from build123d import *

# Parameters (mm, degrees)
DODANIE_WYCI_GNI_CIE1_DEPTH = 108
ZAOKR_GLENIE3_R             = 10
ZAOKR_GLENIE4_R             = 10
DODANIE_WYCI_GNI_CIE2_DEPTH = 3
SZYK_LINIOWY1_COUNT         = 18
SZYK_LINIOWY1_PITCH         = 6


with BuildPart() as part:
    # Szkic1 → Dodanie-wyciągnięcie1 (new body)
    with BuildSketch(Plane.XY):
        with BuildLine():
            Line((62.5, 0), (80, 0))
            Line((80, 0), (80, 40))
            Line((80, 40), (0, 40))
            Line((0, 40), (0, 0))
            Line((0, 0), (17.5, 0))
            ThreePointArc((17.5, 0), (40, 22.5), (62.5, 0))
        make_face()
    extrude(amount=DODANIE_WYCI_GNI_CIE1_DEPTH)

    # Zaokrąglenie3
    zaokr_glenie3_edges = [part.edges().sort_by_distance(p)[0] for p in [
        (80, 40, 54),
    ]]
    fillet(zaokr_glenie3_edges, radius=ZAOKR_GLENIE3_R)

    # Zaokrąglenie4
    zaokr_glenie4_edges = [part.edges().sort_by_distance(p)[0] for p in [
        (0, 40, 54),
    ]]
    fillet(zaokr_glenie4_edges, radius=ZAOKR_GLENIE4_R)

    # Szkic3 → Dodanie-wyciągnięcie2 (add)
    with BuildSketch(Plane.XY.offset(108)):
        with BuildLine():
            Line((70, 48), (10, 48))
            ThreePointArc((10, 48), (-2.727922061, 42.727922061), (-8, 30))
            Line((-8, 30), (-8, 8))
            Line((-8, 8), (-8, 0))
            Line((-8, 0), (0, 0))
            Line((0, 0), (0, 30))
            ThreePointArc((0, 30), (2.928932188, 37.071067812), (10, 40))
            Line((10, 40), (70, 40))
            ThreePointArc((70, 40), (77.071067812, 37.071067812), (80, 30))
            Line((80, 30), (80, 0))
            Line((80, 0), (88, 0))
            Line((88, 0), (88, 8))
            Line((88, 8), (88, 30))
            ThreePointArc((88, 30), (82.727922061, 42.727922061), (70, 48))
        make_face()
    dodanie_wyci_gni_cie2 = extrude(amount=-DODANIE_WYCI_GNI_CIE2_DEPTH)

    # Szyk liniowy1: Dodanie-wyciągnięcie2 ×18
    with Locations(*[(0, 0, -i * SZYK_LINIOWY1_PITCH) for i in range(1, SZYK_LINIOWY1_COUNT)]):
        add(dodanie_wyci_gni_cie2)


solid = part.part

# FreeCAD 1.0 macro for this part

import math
import FreeCAD as App
import Part
import Sketcher

V = App.Vector


def edges_at(feature, points):
    """Names of the edges that pass closest to the given points."""
    edges = feature.Shape.Edges
    near = lambda p: min(range(len(edges)), key=lambda i: edges[i].distToShape(Part.Vertex(*p))[0])
    return sorted({f"Edge{near(p) + 1}" for p in points})

doc = App.newDocument("Part")
body = doc.addObject("PartDesign::Body", "Body")

# Sketch on XY plane
sketch1 = doc.addObject("Sketcher::SketchObject", "Sketch")
body.addObject(sketch1)
sketch1.AttachmentSupport = (doc.XY_Plane, [""])
sketch1.MapMode = "FlatFace"
sketch1.addGeometry(Part.LineSegment(V(62, 0, 0), V(80, 0, 0)), False)
sketch1.addGeometry(Part.LineSegment(V(80, 0, 0), V(80, 40, 0)), False)
sketch1.addGeometry(Part.LineSegment(V(80, 40, 0), V(0, 40, 0)), False)
sketch1.addGeometry(Part.LineSegment(V(0, 40, 0), V(0, 0, 0)), False)
sketch1.addGeometry(Part.LineSegment(V(0, 0, 0), V(18, 0, 0)), False)
sketch1.addGeometry(Part.ArcOfCircle(Part.Circle(V(40, 0, 0), V(0, 0, 1), 22), math.radians(0), math.radians(180)), False)
sketch1.addConstraint(Sketcher.Constraint("Coincident", 0, 2, 1, 1))
sketch1.addConstraint(Sketcher.Constraint("Coincident", 1, 2, 2, 1))
sketch1.addConstraint(Sketcher.Constraint("Coincident", 2, 2, 3, 1))
sketch1.addConstraint(Sketcher.Constraint("Coincident", 3, 2, 4, 1))
sketch1.addConstraint(Sketcher.Constraint("Coincident", 4, 2, 5, 2))
sketch1.addConstraint(Sketcher.Constraint("Coincident", 5, 1, 0, 1))
sketch1.addConstraint(Sketcher.Constraint("Horizontal", 0))
sketch1.addConstraint(Sketcher.Constraint("Vertical", 1))
sketch1.addConstraint(Sketcher.Constraint("Horizontal", 2))
sketch1.addConstraint(Sketcher.Constraint("Vertical", 3))
sketch1.addConstraint(Sketcher.Constraint("Horizontal", 4))
sketch1.addConstraint(Sketcher.Constraint("Coincident", 3, 2, -1, 1))
sketch1.addConstraint(Sketcher.Constraint("PointOnObject", 5, 3, -1))
sketch1.addConstraint(Sketcher.Constraint("PointOnObject", 0, 2, -1))
sketch1.addConstraint(Sketcher.Constraint("Equal", 0, 4))
sketch1.addConstraint(Sketcher.Constraint("Radius", 5, 22.5))
sketch1.addConstraint(Sketcher.Constraint("DistanceX", 2, 2, 2, 1, 80.0))
sketch1.addConstraint(Sketcher.Constraint("DistanceY", 1, 1, 1, 2, 40.0))
pad1 = doc.addObject("PartDesign::Pad", "Pad")
body.addObject(pad1)
pad1.Profile = sketch1
pad1.Length = 108
doc.recompute()

fillet = doc.addObject("PartDesign::Fillet", "Fillet")
body.addObject(fillet)
fillet.Base = (pad1, edges_at(pad1, [(80, 40, 54)]))
fillet.Radius = 10
doc.recompute()

fillet2 = doc.addObject("PartDesign::Fillet", "Fillet001")
body.addObject(fillet2)
fillet2.Base = (fillet, edges_at(fillet, [(0, 40, 54)]))
fillet2.Radius = 10

# Sketch on XY plane
sketch2 = doc.addObject("Sketcher::SketchObject", "Sketch001")
body.addObject(sketch2)
sketch2.AttachmentSupport = (doc.XY_Plane, [""])
sketch2.MapMode = "FlatFace"
sketch2.AttachmentOffset = App.Placement(V(0, 0, 108), App.Rotation())
sketch2.addGeometry(Part.LineSegment(V(70, 48, 0), V(10, 48, 0)), False)
sketch2.addGeometry(Part.ArcOfCircle(Part.Circle(V(10, 30, 0), V(0, 0, 1), 18), math.radians(90), math.radians(180)), False)
sketch2.addGeometry(Part.LineSegment(V(-8, 30, 0), V(-8, 0, 0)), False)
sketch2.addGeometry(Part.LineSegment(V(-8, 0, 0), V(0, 0, 0)), False)
sketch2.addGeometry(Part.LineSegment(V(0, 0, 0), V(0, 30, 0)), False)
sketch2.addGeometry(Part.ArcOfCircle(Part.Circle(V(10, 30, 0), V(0, 0, 1), 10), math.radians(90), math.radians(180)), False)
sketch2.addGeometry(Part.LineSegment(V(10, 40, 0), V(70, 40, 0)), False)
sketch2.addGeometry(Part.ArcOfCircle(Part.Circle(V(70, 30, 0), V(0, 0, 1), 10), math.radians(0), math.radians(90)), False)
sketch2.addGeometry(Part.LineSegment(V(80, 30, 0), V(80, 0, 0)), False)
sketch2.addGeometry(Part.LineSegment(V(80, 0, 0), V(88, 0, 0)), False)
sketch2.addGeometry(Part.LineSegment(V(88, 0, 0), V(88, 30, 0)), False)
sketch2.addGeometry(Part.ArcOfCircle(Part.Circle(V(70, 30, 0), V(0, 0, 1), 18), math.radians(0), math.radians(90)), False)
sketch2.addConstraint(Sketcher.Constraint("Tangent", 0, 2, 1, 1))
sketch2.addConstraint(Sketcher.Constraint("Tangent", 1, 2, 2, 1))
sketch2.addConstraint(Sketcher.Constraint("Coincident", 2, 2, 3, 1))
sketch2.addConstraint(Sketcher.Constraint("Coincident", 3, 2, 4, 1))
sketch2.addConstraint(Sketcher.Constraint("Tangent", 4, 2, 5, 2))
sketch2.addConstraint(Sketcher.Constraint("Tangent", 5, 1, 6, 1))
sketch2.addConstraint(Sketcher.Constraint("Tangent", 6, 2, 7, 2))
sketch2.addConstraint(Sketcher.Constraint("Tangent", 7, 1, 8, 1))
sketch2.addConstraint(Sketcher.Constraint("Coincident", 8, 2, 9, 1))
sketch2.addConstraint(Sketcher.Constraint("Coincident", 9, 2, 10, 1))
sketch2.addConstraint(Sketcher.Constraint("Tangent", 10, 2, 11, 1))
sketch2.addConstraint(Sketcher.Constraint("Tangent", 11, 2, 0, 1))
sketch2.addConstraint(Sketcher.Constraint("Horizontal", 0))
sketch2.addConstraint(Sketcher.Constraint("Vertical", 2))
sketch2.addConstraint(Sketcher.Constraint("Horizontal", 3))
sketch2.addConstraint(Sketcher.Constraint("Vertical", 4))
sketch2.addConstraint(Sketcher.Constraint("Horizontal", 6))
sketch2.addConstraint(Sketcher.Constraint("Vertical", 8))
sketch2.addConstraint(Sketcher.Constraint("Horizontal", 9))
sketch2.addConstraint(Sketcher.Constraint("Vertical", 10))
sketch2.addConstraint(Sketcher.Constraint("Coincident", 3, 2, -1, 1))
sketch2.addConstraint(Sketcher.Constraint("Coincident", 5, 3, 1, 3))
sketch2.addConstraint(Sketcher.Constraint("Coincident", 11, 3, 7, 3))
sketch2.addConstraint(Sketcher.Constraint("Equal", 5, 7))
sketch2.addConstraint(Sketcher.Constraint("PointOnObject", 8, 2, -1))
sketch2.addConstraint(Sketcher.Constraint("Radius", 1, 18.0))
sketch2.addConstraint(Sketcher.Constraint("Radius", 5, 10.0))
sketch2.addConstraint(Sketcher.Constraint("DistanceX", 0, 2, 0, 1, 60.0))
sketch2.addConstraint(Sketcher.Constraint("DistanceY", 2, 2, 2, 1, 30.0))
pad2 = doc.addObject("PartDesign::Pad", "Pad001")
body.addObject(pad2)
pad2.Profile = sketch2
pad2.Length = 3
pad2.Reversed = True
doc.recompute()

linearpattern = doc.addObject("PartDesign::LinearPattern", "LinearPattern")
body.addObject(linearpattern)
linearpattern.Originals = [pad2]
linearpattern.Direction = (doc.Z_Axis, [""])
linearpattern.Mode = "offset"
linearpattern.Offset = 6
linearpattern.Occurrences = 18
linearpattern.Reversed = True
body.Tip = linearpattern

doc.recompute()
